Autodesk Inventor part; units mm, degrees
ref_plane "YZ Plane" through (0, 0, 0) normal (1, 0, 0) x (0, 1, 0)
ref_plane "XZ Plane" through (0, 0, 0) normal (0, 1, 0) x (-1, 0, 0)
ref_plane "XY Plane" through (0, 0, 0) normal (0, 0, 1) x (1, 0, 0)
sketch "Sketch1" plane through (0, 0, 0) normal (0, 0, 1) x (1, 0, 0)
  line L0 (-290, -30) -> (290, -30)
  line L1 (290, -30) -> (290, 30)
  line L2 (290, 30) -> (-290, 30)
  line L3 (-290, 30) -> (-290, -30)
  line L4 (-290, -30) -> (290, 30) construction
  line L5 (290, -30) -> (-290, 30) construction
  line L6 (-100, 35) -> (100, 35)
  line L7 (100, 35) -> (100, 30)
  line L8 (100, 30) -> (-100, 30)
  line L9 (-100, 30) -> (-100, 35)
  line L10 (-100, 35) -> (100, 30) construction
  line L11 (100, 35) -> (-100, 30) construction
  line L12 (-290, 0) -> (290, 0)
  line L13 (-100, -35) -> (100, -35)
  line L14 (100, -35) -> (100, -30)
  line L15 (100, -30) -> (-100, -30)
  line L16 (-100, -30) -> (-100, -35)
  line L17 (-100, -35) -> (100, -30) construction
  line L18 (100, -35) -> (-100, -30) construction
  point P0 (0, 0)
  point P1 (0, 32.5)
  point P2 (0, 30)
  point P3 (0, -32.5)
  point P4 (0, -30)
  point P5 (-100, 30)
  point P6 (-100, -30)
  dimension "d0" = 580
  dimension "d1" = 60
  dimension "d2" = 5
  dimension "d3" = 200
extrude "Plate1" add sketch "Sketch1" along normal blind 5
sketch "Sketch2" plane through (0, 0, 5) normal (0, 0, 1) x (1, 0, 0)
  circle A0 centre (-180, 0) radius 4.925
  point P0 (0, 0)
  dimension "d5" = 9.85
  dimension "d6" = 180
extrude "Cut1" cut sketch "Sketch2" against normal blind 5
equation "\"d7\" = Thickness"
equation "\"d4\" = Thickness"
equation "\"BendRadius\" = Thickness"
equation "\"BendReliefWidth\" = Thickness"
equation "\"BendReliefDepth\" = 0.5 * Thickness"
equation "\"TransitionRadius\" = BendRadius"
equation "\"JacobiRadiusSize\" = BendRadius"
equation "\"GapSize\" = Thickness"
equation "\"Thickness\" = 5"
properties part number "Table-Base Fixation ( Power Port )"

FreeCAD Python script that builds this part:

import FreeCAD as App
import Part
import Sketcher
Q = App.Units.Quantity


def add_polygon(sketch, points):
    """Adds a closed chain of lines whose ends are joined by coincident constraints."""
    first, n = sketch.GeometryCount, len(points)
    for a, b in zip(points, points[1:] + points[:1]):
        sketch.addGeometry(Part.LineSegment(App.Vector(*a, 0), App.Vector(*b, 0)), False)
    for i in range(n):
        sketch.addConstraint(Sketcher.Constraint("Coincident", first + i, 2, first + (i + 1) % n, 1))

doc = App.newDocument("Part")
body = doc.addObject("PartDesign::Body", "Body")

# Sketch on XY plane
sketch1 = body.newObject("Sketcher::SketchObject", "Sketch")
sketch1.AttachmentSupport = (doc.getObject("XY_Plane"), [""])
sketch1.MapMode = "FlatFace"
add_polygon(sketch1, [(-290, -30), (-100, -30), (-100, -35), (100, -35), (100, -30), (290, -30), (290, 30), (100, 30), (100, 35), (-100, 35), (-100, 30), (-290, 30)])  # lines 0-11
sketch1.addConstraint([
    Sketcher.Constraint("Horizontal", 0),
    Sketcher.Constraint("Vertical", 1),
    Sketcher.Constraint("Horizontal", 2),
    Sketcher.Constraint("Vertical", 3),
    Sketcher.Constraint("Horizontal", 4),
    Sketcher.Constraint("Vertical", 5),
    Sketcher.Constraint("Horizontal", 6),
    Sketcher.Constraint("Vertical", 7),
    Sketcher.Constraint("Horizontal", 8),
    Sketcher.Constraint("Vertical", 9),
    Sketcher.Constraint("Horizontal", 10),
    Sketcher.Constraint("Vertical", 11),
    Sketcher.Constraint("Symmetric", 0, 2, 6, 2, -1, 1),
    Sketcher.Constraint("Symmetric", 2, 2, 8, 2, -1, 1),
    Sketcher.Constraint("Symmetric", 4, 2, 10, 2, -1, 1),
    Sketcher.Constraint("Symmetric", 0, 2, 3, 2, -2),
    Sketcher.Constraint("DistanceX", 2, 1, 2, 2, Q("200 mm")),
    Sketcher.Constraint("DistanceY", 1, 2, 1, 1, Q("5 mm")),
    Sketcher.Constraint("DistanceY", 5, 1, 5, 2, Q("60 mm")),
    Sketcher.Constraint("DistanceX", 0, 1, 0, 2, Q("190 mm")),
])
pad1 = body.newObject("PartDesign::Pad", "Pad")
pad1.Profile = sketch1
pad1.Length = 5

# Sketch on XY plane
sketch2 = body.newObject("Sketcher::SketchObject", "Sketch001")
sketch2.AttachmentSupport = (doc.getObject("XY_Plane"), [""])
sketch2.MapMode = "FlatFace"
sketch2.AttachmentOffset = App.Placement(App.Vector(0, 0, 5), App.Rotation())
sketch2.addGeometry(Part.Circle(App.Vector(-180, 0, 0), App.Vector(0, 0, 1), 4.9), False)
sketch2.addConstraint([
    Sketcher.Constraint("PointOnObject", 0, 3, -1),
    Sketcher.Constraint("Diameter", 0, Q("9.85 mm")),
    Sketcher.Constraint("DistanceX", 0, 3, -1, 1, Q("180 mm")),
])
pocket1 = body.newObject("PartDesign::Pocket", "Pocket")
pocket1.Profile = sketch2
pocket1.Length = 5

doc.recompute()
